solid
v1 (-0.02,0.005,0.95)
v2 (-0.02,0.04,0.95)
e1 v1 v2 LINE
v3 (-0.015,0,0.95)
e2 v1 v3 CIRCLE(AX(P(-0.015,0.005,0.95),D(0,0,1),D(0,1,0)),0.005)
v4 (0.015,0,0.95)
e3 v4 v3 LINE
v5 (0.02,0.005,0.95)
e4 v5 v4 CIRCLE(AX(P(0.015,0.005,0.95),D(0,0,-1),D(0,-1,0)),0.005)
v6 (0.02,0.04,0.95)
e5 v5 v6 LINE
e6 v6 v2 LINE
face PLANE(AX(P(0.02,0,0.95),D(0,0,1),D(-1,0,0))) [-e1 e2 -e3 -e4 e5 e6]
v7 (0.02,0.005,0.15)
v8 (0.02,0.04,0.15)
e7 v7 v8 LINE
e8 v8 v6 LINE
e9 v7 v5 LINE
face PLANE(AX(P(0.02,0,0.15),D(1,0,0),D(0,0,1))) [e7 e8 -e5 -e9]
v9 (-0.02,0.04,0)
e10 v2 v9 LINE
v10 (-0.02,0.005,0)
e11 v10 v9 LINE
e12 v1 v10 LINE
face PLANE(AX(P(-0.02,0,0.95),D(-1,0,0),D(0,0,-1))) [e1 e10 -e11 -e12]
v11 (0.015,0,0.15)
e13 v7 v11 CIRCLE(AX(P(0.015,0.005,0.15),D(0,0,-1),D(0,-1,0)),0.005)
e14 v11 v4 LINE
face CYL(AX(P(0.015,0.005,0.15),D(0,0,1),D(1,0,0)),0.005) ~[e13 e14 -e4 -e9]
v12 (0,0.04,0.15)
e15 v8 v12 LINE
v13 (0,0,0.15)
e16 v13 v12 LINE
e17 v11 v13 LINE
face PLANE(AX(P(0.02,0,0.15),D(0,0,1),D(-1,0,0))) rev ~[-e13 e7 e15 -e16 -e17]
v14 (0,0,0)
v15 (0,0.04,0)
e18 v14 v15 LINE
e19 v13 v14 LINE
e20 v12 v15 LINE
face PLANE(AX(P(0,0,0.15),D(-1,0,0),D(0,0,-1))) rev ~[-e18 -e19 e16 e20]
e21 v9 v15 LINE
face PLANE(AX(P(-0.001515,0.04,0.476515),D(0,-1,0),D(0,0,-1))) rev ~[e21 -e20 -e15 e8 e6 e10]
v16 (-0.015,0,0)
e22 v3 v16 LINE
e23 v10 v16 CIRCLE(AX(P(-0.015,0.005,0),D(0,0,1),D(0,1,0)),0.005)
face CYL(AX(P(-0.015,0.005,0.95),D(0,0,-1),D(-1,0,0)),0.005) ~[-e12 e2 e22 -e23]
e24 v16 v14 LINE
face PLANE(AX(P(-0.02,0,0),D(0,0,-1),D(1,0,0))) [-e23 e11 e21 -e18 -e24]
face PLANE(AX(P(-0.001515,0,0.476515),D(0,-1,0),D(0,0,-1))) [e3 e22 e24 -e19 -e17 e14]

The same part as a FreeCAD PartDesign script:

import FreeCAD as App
import Part
import Sketcher

V = App.Vector


def edges_at(feature, points):
    """Names of the edges that pass closest to the given points."""
    edges = feature.Shape.Edges
    near = lambda p: min(range(len(edges)), key=lambda i: edges[i].distToShape(Part.Vertex(*p))[0])
    return sorted({f"Edge{near(p) + 1}" for p in points})


def add_polygon(sketch, points):
    """Adds a closed chain of lines whose ends are joined by coincident constraints."""
    first, n = sketch.GeometryCount, len(points)
    for a, b in zip(points, points[1:] + points[:1]):
        sketch.addGeometry(Part.LineSegment(App.Vector(*a, 0), App.Vector(*b, 0)), False)
    for i in range(n):
        sketch.addConstraint(Sketcher.Constraint("Coincident", first + i, 2, first + (i + 1) % n, 1))

doc = App.newDocument("Part")
body = doc.addObject("PartDesign::Body", "Body")

sketch1 = body.newObject("Sketcher::SketchObject", "Sketch")
sketch1.AttachmentSupport = (doc.getObject("XZ_Plane"), [""])
sketch1.MapMode = "FlatFace"
add_polygon(sketch1, [(-0.02, 0.95), (-0.02, 0), (0, 0), (0, 0.15), (0.02, 0.15), (0.02, 0.95)])
sketch1.addConstraint([
    Sketcher.Constraint("Vertical", 0),
    Sketcher.Constraint("Horizontal", 1),
    Sketcher.Constraint("Vertical", 2),
    Sketcher.Constraint("Horizontal", 3),
    Sketcher.Constraint("Vertical", 4),
    Sketcher.Constraint("Horizontal", 5),
    Sketcher.Constraint("Coincident", 1, 2, -1, 1),
    Sketcher.Constraint("Equal", 1, 3),
    Sketcher.Constraint("DistanceX", 1, 1, 1, 2, 0.02),
    Sketcher.Constraint("DistanceY", 4, 1, 4, 2, 0.8),
    Sketcher.Constraint("DistanceY", 0, 2, 0, 1, 0.95),
])
pad1 = body.newObject("PartDesign::Pad", "Pad")
pad1.Profile = sketch1
pad1.Length = 0.04
pad1.Reversed = True
doc.recompute()

fillet = body.newObject("PartDesign::Fillet", "Fillet")
fillet.Base = (pad1, edges_at(pad1, [(0.02, 0, 0.55), (-0.02, 0, 0.475)]))
fillet.Radius = 0.005

doc.recompute()
